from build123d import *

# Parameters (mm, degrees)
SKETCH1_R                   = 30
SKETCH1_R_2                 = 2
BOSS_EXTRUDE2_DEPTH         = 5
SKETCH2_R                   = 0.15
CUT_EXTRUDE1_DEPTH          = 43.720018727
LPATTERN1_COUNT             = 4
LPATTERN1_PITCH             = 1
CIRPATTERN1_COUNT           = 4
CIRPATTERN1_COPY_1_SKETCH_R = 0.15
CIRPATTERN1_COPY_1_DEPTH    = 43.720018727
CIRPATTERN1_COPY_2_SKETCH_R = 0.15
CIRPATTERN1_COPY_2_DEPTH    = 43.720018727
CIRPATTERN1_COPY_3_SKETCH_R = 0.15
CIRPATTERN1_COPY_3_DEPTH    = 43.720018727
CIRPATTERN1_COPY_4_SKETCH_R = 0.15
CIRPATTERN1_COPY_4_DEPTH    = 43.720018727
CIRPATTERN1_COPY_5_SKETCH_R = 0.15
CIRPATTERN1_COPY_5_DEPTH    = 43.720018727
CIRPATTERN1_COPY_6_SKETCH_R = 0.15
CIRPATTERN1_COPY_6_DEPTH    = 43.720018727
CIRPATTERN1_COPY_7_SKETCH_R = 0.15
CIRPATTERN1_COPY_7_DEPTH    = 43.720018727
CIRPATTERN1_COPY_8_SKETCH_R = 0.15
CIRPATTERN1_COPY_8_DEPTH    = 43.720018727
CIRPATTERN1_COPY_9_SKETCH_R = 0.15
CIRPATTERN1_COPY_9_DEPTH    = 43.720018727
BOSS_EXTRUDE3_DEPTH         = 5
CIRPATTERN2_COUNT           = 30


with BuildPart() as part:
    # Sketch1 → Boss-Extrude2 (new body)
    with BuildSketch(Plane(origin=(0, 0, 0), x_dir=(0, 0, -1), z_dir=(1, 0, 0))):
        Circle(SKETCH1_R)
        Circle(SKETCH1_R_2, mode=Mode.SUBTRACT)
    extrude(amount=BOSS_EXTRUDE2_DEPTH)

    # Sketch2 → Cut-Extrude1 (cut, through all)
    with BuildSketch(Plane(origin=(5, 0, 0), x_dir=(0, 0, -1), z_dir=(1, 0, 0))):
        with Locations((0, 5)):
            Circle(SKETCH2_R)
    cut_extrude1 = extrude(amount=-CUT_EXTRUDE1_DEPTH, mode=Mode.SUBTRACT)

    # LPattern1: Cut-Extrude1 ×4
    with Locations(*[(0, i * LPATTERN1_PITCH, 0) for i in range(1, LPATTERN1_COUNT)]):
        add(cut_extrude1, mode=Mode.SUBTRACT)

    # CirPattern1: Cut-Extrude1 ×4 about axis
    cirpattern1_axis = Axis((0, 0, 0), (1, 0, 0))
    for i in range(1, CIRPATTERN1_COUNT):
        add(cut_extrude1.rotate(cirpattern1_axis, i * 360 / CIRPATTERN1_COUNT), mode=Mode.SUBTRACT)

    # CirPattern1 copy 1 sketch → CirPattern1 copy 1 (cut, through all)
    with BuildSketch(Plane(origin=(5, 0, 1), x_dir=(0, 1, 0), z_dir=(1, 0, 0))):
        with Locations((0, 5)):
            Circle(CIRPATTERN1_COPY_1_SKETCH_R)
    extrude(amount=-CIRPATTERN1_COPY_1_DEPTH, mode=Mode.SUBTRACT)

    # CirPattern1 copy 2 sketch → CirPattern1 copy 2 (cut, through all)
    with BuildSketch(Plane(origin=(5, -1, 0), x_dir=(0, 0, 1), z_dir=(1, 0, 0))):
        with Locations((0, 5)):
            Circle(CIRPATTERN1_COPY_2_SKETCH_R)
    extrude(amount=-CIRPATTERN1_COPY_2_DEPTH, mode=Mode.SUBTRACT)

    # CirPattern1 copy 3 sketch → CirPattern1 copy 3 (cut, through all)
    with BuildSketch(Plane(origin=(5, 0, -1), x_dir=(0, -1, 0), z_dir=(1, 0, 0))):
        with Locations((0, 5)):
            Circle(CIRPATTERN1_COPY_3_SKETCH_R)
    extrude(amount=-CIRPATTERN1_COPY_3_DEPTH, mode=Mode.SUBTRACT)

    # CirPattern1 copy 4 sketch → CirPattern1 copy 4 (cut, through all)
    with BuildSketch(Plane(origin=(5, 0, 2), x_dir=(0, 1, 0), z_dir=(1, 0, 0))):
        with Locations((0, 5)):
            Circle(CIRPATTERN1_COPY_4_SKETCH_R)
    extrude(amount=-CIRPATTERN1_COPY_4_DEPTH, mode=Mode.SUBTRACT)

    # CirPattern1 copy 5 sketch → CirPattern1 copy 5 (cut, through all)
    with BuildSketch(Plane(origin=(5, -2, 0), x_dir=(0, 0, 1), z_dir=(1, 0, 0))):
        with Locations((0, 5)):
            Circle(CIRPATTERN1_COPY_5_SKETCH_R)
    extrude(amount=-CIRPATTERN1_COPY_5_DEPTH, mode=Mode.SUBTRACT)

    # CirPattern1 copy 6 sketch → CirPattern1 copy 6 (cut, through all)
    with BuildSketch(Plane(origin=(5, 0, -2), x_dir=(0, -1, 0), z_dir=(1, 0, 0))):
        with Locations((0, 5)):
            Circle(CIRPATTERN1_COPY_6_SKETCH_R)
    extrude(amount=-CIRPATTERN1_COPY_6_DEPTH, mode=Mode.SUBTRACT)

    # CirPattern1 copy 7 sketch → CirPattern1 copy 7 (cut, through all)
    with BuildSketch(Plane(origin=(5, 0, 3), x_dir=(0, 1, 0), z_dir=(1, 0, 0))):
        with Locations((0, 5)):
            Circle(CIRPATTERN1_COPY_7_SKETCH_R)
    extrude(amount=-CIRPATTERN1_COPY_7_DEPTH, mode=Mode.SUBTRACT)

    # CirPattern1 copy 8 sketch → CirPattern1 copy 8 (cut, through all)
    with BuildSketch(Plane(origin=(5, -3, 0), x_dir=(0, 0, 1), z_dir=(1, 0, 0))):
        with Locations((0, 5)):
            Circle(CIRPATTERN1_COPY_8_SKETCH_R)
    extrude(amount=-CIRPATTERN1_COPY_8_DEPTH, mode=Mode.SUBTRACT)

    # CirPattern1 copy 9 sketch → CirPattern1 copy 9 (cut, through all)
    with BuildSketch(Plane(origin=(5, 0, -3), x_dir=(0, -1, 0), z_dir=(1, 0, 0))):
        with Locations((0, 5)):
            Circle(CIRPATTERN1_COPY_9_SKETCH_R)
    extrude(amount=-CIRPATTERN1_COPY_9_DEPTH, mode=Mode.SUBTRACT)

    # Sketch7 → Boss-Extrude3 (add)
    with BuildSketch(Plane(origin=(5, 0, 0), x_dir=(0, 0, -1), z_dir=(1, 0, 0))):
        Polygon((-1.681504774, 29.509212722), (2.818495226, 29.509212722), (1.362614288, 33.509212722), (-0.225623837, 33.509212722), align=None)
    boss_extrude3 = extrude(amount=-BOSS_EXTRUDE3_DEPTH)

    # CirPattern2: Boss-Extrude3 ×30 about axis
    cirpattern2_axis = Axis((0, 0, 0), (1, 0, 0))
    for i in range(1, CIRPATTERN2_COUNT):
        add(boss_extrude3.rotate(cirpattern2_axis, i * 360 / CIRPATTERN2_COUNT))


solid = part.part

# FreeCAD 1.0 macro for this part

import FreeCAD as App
import Part
import Sketcher
Q = App.Units.Quantity

doc = App.newDocument("Part")
body = doc.addObject("PartDesign::Body", "Body")

sketch1 = body.newObject("Sketcher::SketchObject", "Sketch")
sketch1.AttachmentSupport = (doc.getObject("YZ_Plane"), [""])
sketch1.MapMode = "FlatFace"
sketch1.addGeometry([
    Part.Circle(App.Vector(0, 0, 0), App.Vector(0, 0, 1), 30),
    Part.Circle(App.Vector(0, 0, 0), App.Vector(0, 0, 1), 2),
], False)
sketch1.addConstraint([
    Sketcher.Constraint("Coincident", 0, 3, -1, 1),
    Sketcher.Constraint("Coincident", 1, 3, -1, 1),
    Sketcher.Constraint("Diameter", 0, 60.0),
    Sketcher.Constraint("Diameter", 1, 4.0),
])
pad1 = body.newObject("PartDesign::Pad", "Pad")
pad1.Profile = sketch1
pad1.Length = 5

sketch2 = body.newObject("Sketcher::SketchObject", "Sketch001")
sketch2.AttachmentSupport = (doc.getObject("YZ_Plane"), [""])
sketch2.MapMode = "FlatFace"
sketch2.AttachmentOffset = App.Placement(App.Vector(0, 0, 5), App.Rotation())
sketch2.addGeometry(Part.Circle(App.Vector(5, 0, 0), App.Vector(0, 0, 1), 0.15), False)
sketch2.addConstraint([
    Sketcher.Constraint("PointOnObject", 0, 3, -1),
    Sketcher.Constraint("Diameter", 0, 0.3),
    Sketcher.Constraint("DistanceX", -1, 1, 0, 3, 5.0),
])
pocket1 = body.newObject("PartDesign::Pocket", "Pocket")
pocket1.Profile = sketch2
pocket1.Type = "ThroughAll"
doc.recompute()

linearpattern = body.newObject("PartDesign::LinearPattern", "LinearPattern")
linearpattern.Originals = [pocket1]
linearpattern.Direction = (doc.getObject("Y_Axis"), [""])
linearpattern.Mode = "offset"
linearpattern.Offset = 1
linearpattern.Occurrences = 4
body.Tip = linearpattern
doc.recompute()

polarpattern = body.newObject("PartDesign::PolarPattern", "PolarPattern")
polarpattern.Originals = [pocket1]
polarpattern.Axis = (doc.getObject("X_Axis"), [""])
polarpattern.Angle = 360
polarpattern.Occurrences = 4
body.Tip = polarpattern

sketch3 = body.newObject("Sketcher::SketchObject", "Sketch002")
sketch3.AttachmentSupport = (doc.getObject("YZ_Plane"), [""])
sketch3.MapMode = "FlatFace"
sketch3.AttachmentOffset = App.Placement(App.Vector(0, 0, 5), App.Rotation())
sketch3.addGeometry(Part.Circle(App.Vector(0, 6, 0), App.Vector(0, 0, 1), 0.15), False)
sketch3.addConstraint([
    Sketcher.Constraint("PointOnObject", 0, 3, -2),
    Sketcher.Constraint("Diameter", 0, 0.3),
    Sketcher.Constraint("DistanceY", -1, 1, 0, 3, 6.0),
])
pocket2 = body.newObject("PartDesign::Pocket", "Pocket001")
pocket2.Profile = sketch3
pocket2.Type = "ThroughAll"

sketch4 = body.newObject("Sketcher::SketchObject", "Sketch003")
sketch4.AttachmentSupport = (doc.getObject("YZ_Plane"), [""])
sketch4.MapMode = "FlatFace"
sketch4.AttachmentOffset = App.Placement(App.Vector(0, 0, 5), App.Rotation())
sketch4.addGeometry(Part.Circle(App.Vector(-6, 0, 0), App.Vector(0, 0, 1), 0.15), False)
sketch4.addConstraint([
    Sketcher.Constraint("PointOnObject", 0, 3, -1),
    Sketcher.Constraint("Diameter", 0, 0.3),
    Sketcher.Constraint("DistanceX", 0, 3, -1, 1, 6.0),
])
pocket3 = body.newObject("PartDesign::Pocket", "Pocket002")
pocket3.Profile = sketch4
pocket3.Type = "ThroughAll"

sketch5 = body.newObject("Sketcher::SketchObject", "Sketch004")
sketch5.AttachmentSupport = (doc.getObject("YZ_Plane"), [""])
sketch5.MapMode = "FlatFace"
sketch5.AttachmentOffset = App.Placement(App.Vector(0, 0, 5), App.Rotation())
sketch5.addGeometry(Part.Circle(App.Vector(0, -6, 0), App.Vector(0, 0, 1), 0.15), False)
sketch5.addConstraint([
    Sketcher.Constraint("PointOnObject", 0, 3, -2),
    Sketcher.Constraint("Diameter", 0, 0.3),
    Sketcher.Constraint("DistanceY", 0, 3, -1, 1, 6.0),
])
pocket4 = body.newObject("PartDesign::Pocket", "Pocket003")
pocket4.Profile = sketch5
pocket4.Type = "ThroughAll"

sketch6 = body.newObject("Sketcher::SketchObject", "Sketch005")
sketch6.AttachmentSupport = (doc.getObject("YZ_Plane"), [""])
sketch6.MapMode = "FlatFace"
sketch6.AttachmentOffset = App.Placement(App.Vector(0, 0, 5), App.Rotation())
sketch6.addGeometry(Part.Circle(App.Vector(0, 7, 0), App.Vector(0, 0, 1), 0.15), False)
sketch6.addConstraint([
    Sketcher.Constraint("PointOnObject", 0, 3, -2),
    Sketcher.Constraint("Diameter", 0, 0.3),
    Sketcher.Constraint("DistanceY", -1, 1, 0, 3, 7.0),
])
pocket5 = body.newObject("PartDesign::Pocket", "Pocket004")
pocket5.Profile = sketch6
pocket5.Type = "ThroughAll"

sketch7 = body.newObject("Sketcher::SketchObject", "Sketch006")
sketch7.AttachmentSupport = (doc.getObject("YZ_Plane"), [""])
sketch7.MapMode = "FlatFace"
sketch7.AttachmentOffset = App.Placement(App.Vector(0, 0, 5), App.Rotation())
sketch7.addGeometry(Part.Circle(App.Vector(-7, 0, 0), App.Vector(0, 0, 1), 0.15), False)
sketch7.addConstraint([
    Sketcher.Constraint("PointOnObject", 0, 3, -1),
    Sketcher.Constraint("Diameter", 0, 0.3),
    Sketcher.Constraint("DistanceX", 0, 3, -1, 1, 7.0),
])
pocket6 = body.newObject("PartDesign::Pocket", "Pocket005")
pocket6.Profile = sketch7
pocket6.Type = "ThroughAll"

sketch8 = body.newObject("Sketcher::SketchObject", "Sketch007")
sketch8.AttachmentSupport = (doc.getObject("YZ_Plane"), [""])
sketch8.MapMode = "FlatFace"
sketch8.AttachmentOffset = App.Placement(App.Vector(0, 0, 5), App.Rotation())
sketch8.addGeometry(Part.Circle(App.Vector(0, -7, 0), App.Vector(0, 0, 1), 0.15), False)
sketch8.addConstraint([
    Sketcher.Constraint("PointOnObject", 0, 3, -2),
    Sketcher.Constraint("Diameter", 0, 0.3),
    Sketcher.Constraint("DistanceY", 0, 3, -1, 1, 7.0),
])
pocket7 = body.newObject("PartDesign::Pocket", "Pocket006")
pocket7.Profile = sketch8
pocket7.Type = "ThroughAll"

sketch9 = body.newObject("Sketcher::SketchObject", "Sketch008")
sketch9.AttachmentSupport = (doc.getObject("YZ_Plane"), [""])
sketch9.MapMode = "FlatFace"
sketch9.AttachmentOffset = App.Placement(App.Vector(0, 0, 5), App.Rotation())
sketch9.addGeometry(Part.Circle(App.Vector(0, 8, 0), App.Vector(0, 0, 1), 0.15), False)
sketch9.addConstraint([
    Sketcher.Constraint("PointOnObject", 0, 3, -2),
    Sketcher.Constraint("Diameter", 0, 0.3),
    Sketcher.Constraint("DistanceY", -1, 1, 0, 3, 8.0),
])
pocket8 = body.newObject("PartDesign::Pocket", "Pocket007")
pocket8.Profile = sketch9
pocket8.Type = "ThroughAll"

sketch10 = body.newObject("Sketcher::SketchObject", "Sketch009")
sketch10.AttachmentSupport = (doc.getObject("YZ_Plane"), [""])
sketch10.MapMode = "FlatFace"
sketch10.AttachmentOffset = App.Placement(App.Vector(0, 0, 5), App.Rotation())
sketch10.addGeometry(Part.Circle(App.Vector(-8, 0, 0), App.Vector(0, 0, 1), 0.15), False)
sketch10.addConstraint([
    Sketcher.Constraint("PointOnObject", 0, 3, -1),
    Sketcher.Constraint("Diameter", 0, 0.3),
    Sketcher.Constraint("DistanceX", 0, 3, -1, 1, 8.0),
])
pocket9 = body.newObject("PartDesign::Pocket", "Pocket008")
pocket9.Profile = sketch10
pocket9.Type = "ThroughAll"

sketch11 = body.newObject("Sketcher::SketchObject", "Sketch010")
sketch11.AttachmentSupport = (doc.getObject("YZ_Plane"), [""])
sketch11.MapMode = "FlatFace"
sketch11.AttachmentOffset = App.Placement(App.Vector(0, 0, 5), App.Rotation())
sketch11.addGeometry(Part.Circle(App.Vector(0, -8, 0), App.Vector(0, 0, 1), 0.15), False)
sketch11.addConstraint([
    Sketcher.Constraint("PointOnObject", 0, 3, -2),
    Sketcher.Constraint("Diameter", 0, 0.3),
    Sketcher.Constraint("DistanceY", 0, 3, -1, 1, 8.0),
])
pocket10 = body.newObject("PartDesign::Pocket", "Pocket009")
pocket10.Profile = sketch11
pocket10.Type = "ThroughAll"

sketch12 = body.newObject("Sketcher::SketchObject", "Sketch011")
sketch12.AttachmentSupport = (doc.getObject("YZ_Plane"), [""])
sketch12.MapMode = "FlatFace"
sketch12.AttachmentOffset = App.Placement(App.Vector(0, 0, 5), App.Rotation())
sketch12.addGeometry([
    Part.LineSegment(App.Vector(29.5, 1.7, 0), App.Vector(29.5, -2.8, 0)),
    Part.LineSegment(App.Vector(29.5, -2.8, 0), App.Vector(33.5, -1.4, 0)),
    Part.LineSegment(App.Vector(33.5, -1.4, 0), App.Vector(33.5, 0.2, 0)),
    Part.LineSegment(App.Vector(33.5, 0.2, 0), App.Vector(29.5, 1.7, 0)),
], False)
sketch12.addConstraint([
    Sketcher.Constraint("Coincident", 0, 2, 1, 1),
    Sketcher.Constraint("Coincident", 1, 2, 2, 1),
    Sketcher.Constraint("Coincident", 2, 2, 3, 1),
    Sketcher.Constraint("Coincident", 3, 2, 0, 1),
    Sketcher.Constraint("Vertical", 0),
    Sketcher.Constraint("Vertical", 2),
    Sketcher.Constraint("Equal", 1, 3),
    Sketcher.Constraint("Angle", 1, Q("20 deg")),
    Sketcher.Constraint("DistanceY", 0, 2, 0, 1, 4.5),
    Sketcher.Constraint("DistanceX", 0, 2, 1, 2, 4.0),
    Sketcher.Constraint("DistanceX", -1, 1, 0, 2, 29.509213),
    Sketcher.Constraint("DistanceY", 0, 2, -1, 1, 2.818495),
])
pad2 = body.newObject("PartDesign::Pad", "Pad001")
pad2.Profile = sketch12
pad2.Length = 5
pad2.Reversed = True
doc.recompute()

polarpattern2 = body.newObject("PartDesign::PolarPattern", "PolarPattern001")
polarpattern2.Originals = [pad2]
polarpattern2.Axis = (doc.getObject("X_Axis"), [""])
polarpattern2.Angle = 360
polarpattern2.Occurrences = 30
body.Tip = polarpattern2

doc.recompute()
